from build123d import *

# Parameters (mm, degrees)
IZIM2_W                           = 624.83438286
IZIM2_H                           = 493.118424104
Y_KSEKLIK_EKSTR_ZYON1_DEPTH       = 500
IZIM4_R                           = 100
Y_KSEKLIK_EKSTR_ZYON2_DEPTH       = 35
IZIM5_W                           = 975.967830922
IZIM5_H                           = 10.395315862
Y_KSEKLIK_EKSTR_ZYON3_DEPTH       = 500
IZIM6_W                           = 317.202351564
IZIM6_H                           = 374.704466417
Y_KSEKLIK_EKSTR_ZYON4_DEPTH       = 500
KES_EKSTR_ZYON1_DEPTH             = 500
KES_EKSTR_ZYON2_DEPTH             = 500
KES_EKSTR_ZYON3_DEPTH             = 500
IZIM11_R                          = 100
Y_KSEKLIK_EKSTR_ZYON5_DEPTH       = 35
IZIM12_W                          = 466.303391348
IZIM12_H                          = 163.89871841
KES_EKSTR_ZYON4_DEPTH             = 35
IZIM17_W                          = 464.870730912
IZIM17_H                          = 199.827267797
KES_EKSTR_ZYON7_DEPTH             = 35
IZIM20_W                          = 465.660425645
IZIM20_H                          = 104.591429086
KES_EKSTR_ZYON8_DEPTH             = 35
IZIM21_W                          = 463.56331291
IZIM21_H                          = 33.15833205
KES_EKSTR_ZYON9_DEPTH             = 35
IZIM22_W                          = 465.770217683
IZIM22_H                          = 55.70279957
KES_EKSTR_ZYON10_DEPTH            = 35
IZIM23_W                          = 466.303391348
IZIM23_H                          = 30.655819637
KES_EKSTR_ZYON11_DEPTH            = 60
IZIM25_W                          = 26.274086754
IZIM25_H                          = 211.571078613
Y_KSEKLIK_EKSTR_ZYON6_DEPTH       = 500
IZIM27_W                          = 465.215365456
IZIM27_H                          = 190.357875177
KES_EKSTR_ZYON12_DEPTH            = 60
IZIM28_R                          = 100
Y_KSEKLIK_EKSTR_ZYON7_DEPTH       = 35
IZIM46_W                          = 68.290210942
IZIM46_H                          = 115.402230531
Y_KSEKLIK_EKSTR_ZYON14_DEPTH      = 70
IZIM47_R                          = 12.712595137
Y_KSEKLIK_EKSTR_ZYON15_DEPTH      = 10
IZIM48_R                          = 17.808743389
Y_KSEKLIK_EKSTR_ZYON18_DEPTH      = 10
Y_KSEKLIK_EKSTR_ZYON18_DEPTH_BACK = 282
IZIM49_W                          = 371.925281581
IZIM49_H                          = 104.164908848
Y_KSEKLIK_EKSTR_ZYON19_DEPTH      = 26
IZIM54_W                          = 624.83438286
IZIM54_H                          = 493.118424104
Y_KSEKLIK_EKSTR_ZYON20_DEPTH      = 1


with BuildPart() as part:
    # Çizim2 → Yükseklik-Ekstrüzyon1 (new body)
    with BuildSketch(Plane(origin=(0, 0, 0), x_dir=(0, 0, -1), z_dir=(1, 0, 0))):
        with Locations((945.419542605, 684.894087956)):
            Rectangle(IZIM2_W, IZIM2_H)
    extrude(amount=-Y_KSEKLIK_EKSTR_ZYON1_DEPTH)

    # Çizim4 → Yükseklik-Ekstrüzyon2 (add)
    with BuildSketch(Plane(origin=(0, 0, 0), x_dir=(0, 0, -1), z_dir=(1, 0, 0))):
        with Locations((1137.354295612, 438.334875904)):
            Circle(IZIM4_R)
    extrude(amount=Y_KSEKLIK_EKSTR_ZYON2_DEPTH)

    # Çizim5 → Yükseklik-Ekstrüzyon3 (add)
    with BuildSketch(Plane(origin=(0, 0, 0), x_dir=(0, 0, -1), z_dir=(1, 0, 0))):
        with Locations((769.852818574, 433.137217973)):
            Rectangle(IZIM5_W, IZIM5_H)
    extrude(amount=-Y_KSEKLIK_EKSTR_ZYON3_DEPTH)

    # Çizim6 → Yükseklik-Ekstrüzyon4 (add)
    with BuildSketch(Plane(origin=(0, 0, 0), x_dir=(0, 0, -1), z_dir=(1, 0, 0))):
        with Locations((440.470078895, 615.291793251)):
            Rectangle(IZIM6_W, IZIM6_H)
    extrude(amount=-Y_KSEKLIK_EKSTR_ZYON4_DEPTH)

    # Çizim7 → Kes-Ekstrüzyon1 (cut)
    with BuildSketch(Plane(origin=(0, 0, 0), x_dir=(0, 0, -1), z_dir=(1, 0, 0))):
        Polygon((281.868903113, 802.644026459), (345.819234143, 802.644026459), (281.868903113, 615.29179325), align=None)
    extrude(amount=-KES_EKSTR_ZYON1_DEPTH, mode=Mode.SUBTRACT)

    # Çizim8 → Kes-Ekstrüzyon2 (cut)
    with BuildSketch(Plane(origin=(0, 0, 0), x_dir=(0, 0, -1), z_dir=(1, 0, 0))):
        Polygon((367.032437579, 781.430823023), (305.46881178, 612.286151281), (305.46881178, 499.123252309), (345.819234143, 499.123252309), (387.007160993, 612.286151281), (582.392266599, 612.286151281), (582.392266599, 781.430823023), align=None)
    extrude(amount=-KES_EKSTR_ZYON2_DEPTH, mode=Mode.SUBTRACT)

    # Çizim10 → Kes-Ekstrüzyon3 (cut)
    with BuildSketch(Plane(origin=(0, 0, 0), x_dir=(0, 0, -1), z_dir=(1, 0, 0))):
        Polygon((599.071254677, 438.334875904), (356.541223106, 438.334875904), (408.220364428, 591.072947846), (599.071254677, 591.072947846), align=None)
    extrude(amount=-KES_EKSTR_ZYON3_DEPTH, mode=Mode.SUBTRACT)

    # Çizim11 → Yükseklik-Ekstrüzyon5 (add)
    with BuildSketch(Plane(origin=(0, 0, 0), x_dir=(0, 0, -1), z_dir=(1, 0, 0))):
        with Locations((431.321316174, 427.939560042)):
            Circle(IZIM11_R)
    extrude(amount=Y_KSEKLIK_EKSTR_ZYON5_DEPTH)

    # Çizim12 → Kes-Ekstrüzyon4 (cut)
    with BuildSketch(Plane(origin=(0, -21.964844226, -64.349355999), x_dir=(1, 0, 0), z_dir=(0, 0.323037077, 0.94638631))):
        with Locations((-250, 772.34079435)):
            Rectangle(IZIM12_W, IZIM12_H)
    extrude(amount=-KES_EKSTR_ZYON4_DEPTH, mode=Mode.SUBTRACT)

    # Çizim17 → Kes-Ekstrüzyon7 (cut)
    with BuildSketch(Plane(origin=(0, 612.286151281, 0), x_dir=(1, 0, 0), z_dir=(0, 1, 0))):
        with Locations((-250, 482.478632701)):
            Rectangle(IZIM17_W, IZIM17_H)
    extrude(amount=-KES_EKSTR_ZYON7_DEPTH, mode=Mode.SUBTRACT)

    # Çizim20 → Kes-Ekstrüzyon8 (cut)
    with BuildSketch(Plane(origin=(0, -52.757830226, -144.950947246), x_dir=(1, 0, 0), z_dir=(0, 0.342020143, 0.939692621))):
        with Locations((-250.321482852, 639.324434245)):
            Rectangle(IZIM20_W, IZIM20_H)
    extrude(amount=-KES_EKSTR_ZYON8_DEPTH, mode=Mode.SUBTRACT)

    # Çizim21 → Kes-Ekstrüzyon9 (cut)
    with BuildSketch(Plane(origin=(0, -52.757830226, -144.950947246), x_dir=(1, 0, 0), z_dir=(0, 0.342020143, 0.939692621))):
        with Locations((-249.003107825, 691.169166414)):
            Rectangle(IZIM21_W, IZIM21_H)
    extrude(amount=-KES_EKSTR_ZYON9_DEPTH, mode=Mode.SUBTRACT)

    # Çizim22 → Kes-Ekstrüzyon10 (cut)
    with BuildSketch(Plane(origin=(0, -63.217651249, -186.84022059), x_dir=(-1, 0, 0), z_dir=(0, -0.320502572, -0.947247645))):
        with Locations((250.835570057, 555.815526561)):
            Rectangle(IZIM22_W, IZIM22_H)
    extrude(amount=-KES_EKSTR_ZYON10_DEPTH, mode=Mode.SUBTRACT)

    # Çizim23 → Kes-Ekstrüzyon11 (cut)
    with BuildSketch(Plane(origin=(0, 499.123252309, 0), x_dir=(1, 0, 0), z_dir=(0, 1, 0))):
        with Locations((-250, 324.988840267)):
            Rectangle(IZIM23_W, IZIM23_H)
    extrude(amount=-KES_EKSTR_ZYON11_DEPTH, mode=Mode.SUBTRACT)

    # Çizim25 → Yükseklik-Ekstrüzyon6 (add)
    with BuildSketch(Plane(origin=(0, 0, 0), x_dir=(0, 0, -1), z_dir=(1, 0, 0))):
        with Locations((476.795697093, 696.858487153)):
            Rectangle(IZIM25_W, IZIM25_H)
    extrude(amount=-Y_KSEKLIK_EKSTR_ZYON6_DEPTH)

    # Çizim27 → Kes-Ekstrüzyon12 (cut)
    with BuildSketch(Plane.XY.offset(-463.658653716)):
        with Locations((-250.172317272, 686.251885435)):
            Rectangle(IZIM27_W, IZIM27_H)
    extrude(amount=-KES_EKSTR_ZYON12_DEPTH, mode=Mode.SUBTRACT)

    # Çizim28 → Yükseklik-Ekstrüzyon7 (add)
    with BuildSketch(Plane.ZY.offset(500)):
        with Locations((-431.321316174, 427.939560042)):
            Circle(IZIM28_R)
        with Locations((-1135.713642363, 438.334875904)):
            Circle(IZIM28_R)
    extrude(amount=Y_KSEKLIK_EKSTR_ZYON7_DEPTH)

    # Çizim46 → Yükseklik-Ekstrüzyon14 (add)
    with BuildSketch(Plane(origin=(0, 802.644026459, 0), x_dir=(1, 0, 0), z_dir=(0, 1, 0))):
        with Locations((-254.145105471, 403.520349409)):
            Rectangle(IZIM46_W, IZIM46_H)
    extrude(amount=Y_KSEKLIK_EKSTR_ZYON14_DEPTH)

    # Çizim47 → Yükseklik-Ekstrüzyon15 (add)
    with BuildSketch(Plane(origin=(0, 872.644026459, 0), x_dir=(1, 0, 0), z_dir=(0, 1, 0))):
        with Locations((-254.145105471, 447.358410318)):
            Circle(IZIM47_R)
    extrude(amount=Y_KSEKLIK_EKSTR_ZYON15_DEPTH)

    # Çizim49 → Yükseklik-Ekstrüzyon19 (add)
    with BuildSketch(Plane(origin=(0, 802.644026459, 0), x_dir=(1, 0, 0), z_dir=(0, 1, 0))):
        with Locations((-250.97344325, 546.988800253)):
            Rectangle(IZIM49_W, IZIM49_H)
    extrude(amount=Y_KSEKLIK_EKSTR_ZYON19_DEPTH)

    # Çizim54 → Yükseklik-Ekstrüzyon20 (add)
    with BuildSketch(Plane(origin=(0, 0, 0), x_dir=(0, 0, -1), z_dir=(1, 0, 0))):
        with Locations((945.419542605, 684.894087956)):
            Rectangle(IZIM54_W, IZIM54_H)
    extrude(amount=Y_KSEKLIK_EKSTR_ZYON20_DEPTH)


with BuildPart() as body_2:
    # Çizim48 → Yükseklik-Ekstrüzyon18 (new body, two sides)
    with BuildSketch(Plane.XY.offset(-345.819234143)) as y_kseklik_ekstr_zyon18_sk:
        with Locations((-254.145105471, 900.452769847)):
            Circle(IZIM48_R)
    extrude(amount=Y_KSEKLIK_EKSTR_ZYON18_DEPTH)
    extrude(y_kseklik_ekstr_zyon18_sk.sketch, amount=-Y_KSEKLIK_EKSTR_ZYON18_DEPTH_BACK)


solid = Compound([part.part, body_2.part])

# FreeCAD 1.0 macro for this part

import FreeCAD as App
import Part
import Sketcher

V = App.Vector
Q = App.Units.Quantity

doc = App.newDocument("Part")
body = doc.addObject("PartDesign::Body", "Body")

sketch1 = body.newObject("Sketcher::SketchObject", "Sketch")
sketch1.AttachmentSupport = (doc.getObject("YZ_Plane"), [""])
sketch1.MapMode = "FlatFace"
sketch1.addGeometry(Part.LineSegment(V(931, -633, 0), V(438, -633, 0)), False)
sketch1.addGeometry(Part.LineSegment(V(438, -633, 0), V(438, -1258, 0)), False)
sketch1.addGeometry(Part.LineSegment(V(438, -1258, 0), V(931, -1258, 0)), False)
sketch1.addGeometry(Part.LineSegment(V(931, -1258, 0), V(931, -633, 0)), False)
sketch1.addConstraint(Sketcher.Constraint("Coincident", 0, 2, 1, 1))
sketch1.addConstraint(Sketcher.Constraint("Coincident", 1, 2, 2, 1))
sketch1.addConstraint(Sketcher.Constraint("Coincident", 2, 2, 3, 1))
sketch1.addConstraint(Sketcher.Constraint("Coincident", 3, 2, 0, 1))
sketch1.addConstraint(Sketcher.Constraint("Horizontal", 0))
sketch1.addConstraint(Sketcher.Constraint("Vertical", 1))
sketch1.addConstraint(Sketcher.Constraint("Horizontal", 2))
sketch1.addConstraint(Sketcher.Constraint("Vertical", 3))
sketch1.addConstraint(Sketcher.Constraint("DistanceX", -1, 1, 2, 2, 931.4533))
sketch1.addConstraint(Sketcher.Constraint("DistanceX", 0, 2, 0, 1, 493.118424))
sketch1.addConstraint(Sketcher.Constraint("DistanceY", 1, 2, 1, 1, 624.834383))
sketch1.addConstraint(Sketcher.Constraint("DistanceY", 0, 2, -1, 1, 633.002351))
pad1 = body.newObject("PartDesign::Pad", "Pad")
pad1.Profile = sketch1
pad1.Length = 500
pad1.Reversed = True

sketch2 = body.newObject("Sketcher::SketchObject", "Sketch001")
sketch2.AttachmentSupport = (doc.getObject("YZ_Plane"), [""])
sketch2.MapMode = "FlatFace"
sketch2.addGeometry(Part.Circle(V(438, -1137, 0), V(0, 0, 1), 100), False)
sketch2.addConstraint(Sketcher.Constraint("Diameter", 0, 200.0))
sketch2.addConstraint(Sketcher.Constraint("DistanceX", -1, 1, 0, 3, 438.334876))
sketch2.addConstraint(Sketcher.Constraint("DistanceY", 0, 3, -1, 1, 1137.354296))
pad2 = body.newObject("PartDesign::Pad", "Pad001")
pad2.Profile = sketch2
pad2.Length = 35

sketch3 = body.newObject("Sketcher::SketchObject", "Sketch002")
sketch3.AttachmentSupport = (doc.getObject("YZ_Plane"), [""])
sketch3.MapMode = "FlatFace"
sketch3.addGeometry(Part.LineSegment(V(438, -282, 0), V(428, -282, 0)), False)
sketch3.addGeometry(Part.LineSegment(V(428, -282, 0), V(428, -1258, 0)), False)
sketch3.addGeometry(Part.LineSegment(V(428, -1258, 0), V(438, -1258, 0)), False)
sketch3.addGeometry(Part.LineSegment(V(438, -1258, 0), V(438, -282, 0)), False)
sketch3.addConstraint(Sketcher.Constraint("Coincident", 0, 2, 1, 1))
sketch3.addConstraint(Sketcher.Constraint("Coincident", 1, 2, 2, 1))
sketch3.addConstraint(Sketcher.Constraint("Coincident", 2, 2, 3, 1))
sketch3.addConstraint(Sketcher.Constraint("Coincident", 3, 2, 0, 1))
sketch3.addConstraint(Sketcher.Constraint("Horizontal", 0))
sketch3.addConstraint(Sketcher.Constraint("Vertical", 1))
sketch3.addConstraint(Sketcher.Constraint("Horizontal", 2))
sketch3.addConstraint(Sketcher.Constraint("Vertical", 3))
sketch3.addConstraint(Sketcher.Constraint("DistanceY", 1, 2, 1, 1, 975.967831))
sketch3.addConstraint(Sketcher.Constraint("DistanceX", 0, 2, 0, 1, 10.395316))
sketch3.addConstraint(Sketcher.Constraint("DistanceX", -1, 1, 0, 2, 427.93956))
sketch3.addConstraint(Sketcher.Constraint("DistanceY", 0, 2, -1, 1, 281.868903))
pad3 = body.newObject("PartDesign::Pad", "Pad002")
pad3.Profile = sketch3
pad3.Length = 500
pad3.Reversed = True

sketch4 = body.newObject("Sketcher::SketchObject", "Sketch003")
sketch4.AttachmentSupport = (doc.getObject("YZ_Plane"), [""])
sketch4.MapMode = "FlatFace"
sketch4.addGeometry(Part.LineSegment(V(803, -282, 0), V(428, -282, 0)), False)
sketch4.addGeometry(Part.LineSegment(V(428, -282, 0), V(428, -599, 0)), False)
sketch4.addGeometry(Part.LineSegment(V(428, -599, 0), V(803, -599, 0)), False)
sketch4.addGeometry(Part.LineSegment(V(803, -599, 0), V(803, -282, 0)), False)
sketch4.addConstraint(Sketcher.Constraint("Coincident", 0, 2, 1, 1))
sketch4.addConstraint(Sketcher.Constraint("Coincident", 1, 2, 2, 1))
sketch4.addConstraint(Sketcher.Constraint("Coincident", 2, 2, 3, 1))
sketch4.addConstraint(Sketcher.Constraint("Coincident", 3, 2, 0, 1))
sketch4.addConstraint(Sketcher.Constraint("Horizontal", 0))
sketch4.addConstraint(Sketcher.Constraint("Vertical", 1))
sketch4.addConstraint(Sketcher.Constraint("Horizontal", 2))
sketch4.addConstraint(Sketcher.Constraint("Vertical", 3))
sketch4.addConstraint(Sketcher.Constraint("DistanceY", 1, 2, 1, 1, 317.202352))
sketch4.addConstraint(Sketcher.Constraint("DistanceX", 0, 2, 0, 1, 374.704466))
sketch4.addConstraint(Sketcher.Constraint("DistanceX", -1, 1, 0, 2, 427.93956))
sketch4.addConstraint(Sketcher.Constraint("DistanceY", 0, 2, -1, 1, 281.868903))
pad4 = body.newObject("PartDesign::Pad", "Pad003")
pad4.Profile = sketch4
pad4.Length = 500
pad4.Reversed = True

sketch5 = body.newObject("Sketcher::SketchObject", "Sketch004")
sketch5.AttachmentSupport = (doc.getObject("YZ_Plane"), [""])
sketch5.MapMode = "FlatFace"
sketch5.addGeometry(Part.LineSegment(V(803, -346, 0), V(803, -282, 0)), False)
sketch5.addGeometry(Part.LineSegment(V(803, -282, 0), V(615, -282, 0)), False)
sketch5.addGeometry(Part.LineSegment(V(615, -282, 0), V(803, -346, 0)), False)
sketch5.addConstraint(Sketcher.Constraint("Coincident", 0, 2, 1, 1))
sketch5.addConstraint(Sketcher.Constraint("Coincident", 1, 2, 2, 1))
sketch5.addConstraint(Sketcher.Constraint("Coincident", 2, 2, 0, 1))
sketch5.addConstraint(Sketcher.Constraint("Vertical", 0))
sketch5.addConstraint(Sketcher.Constraint("Horizontal", 1))
sketch5.addConstraint(Sketcher.Constraint("DistanceY", 0, 1, 0, 2, 63.950331))
sketch5.addConstraint(Sketcher.Constraint("DistanceX", 1, 2, 1, 1, 187.352233))
sketch5.addConstraint(Sketcher.Constraint("DistanceX", -1, 1, 0, 2, 802.644026))
sketch5.addConstraint(Sketcher.Constraint("DistanceY", 0, 2, -1, 1, 281.868903))
pocket1 = body.newObject("PartDesign::Pocket", "Pocket")
pocket1.Profile = sketch5
pocket1.Length = 500

sketch6 = body.newObject("Sketcher::SketchObject", "Sketch005")
sketch6.AttachmentSupport = (doc.getObject("YZ_Plane"), [""])
sketch6.MapMode = "FlatFace"
sketch6.addGeometry(Part.LineSegment(V(781, -367, 0), V(612, -305, 0)), False)
sketch6.addGeometry(Part.LineSegment(V(612, -305, 0), V(499, -305, 0)), False)
sketch6.addGeometry(Part.LineSegment(V(499, -305, 0), V(499, -346, 0)), False)
sketch6.addGeometry(Part.LineSegment(V(499, -346, 0), V(612, -387, 0)), False)
sketch6.addGeometry(Part.LineSegment(V(612, -387, 0), V(612, -582, 0)), False)
sketch6.addGeometry(Part.LineSegment(V(612, -582, 0), V(781, -582, 0)), False)
sketch6.addGeometry(Part.LineSegment(V(781, -582, 0), V(781, -367, 0)), False)
sketch6.addConstraint(Sketcher.Constraint("Coincident", 0, 2, 1, 1))
sketch6.addConstraint(Sketcher.Constraint("Coincident", 1, 2, 2, 1))
sketch6.addConstraint(Sketcher.Constraint("Coincident", 2, 2, 3, 1))
sketch6.addConstraint(Sketcher.Constraint("Coincident", 3, 2, 4, 1))
sketch6.addConstraint(Sketcher.Constraint("Coincident", 4, 2, 5, 1))
sketch6.addConstraint(Sketcher.Constraint("Coincident", 5, 2, 6, 1))
sketch6.addConstraint(Sketcher.Constraint("Coincident", 6, 2, 0, 1))
sketch6.addConstraint(Sketcher.Constraint("Horizontal", 1))
sketch6.addConstraint(Sketcher.Constraint("Vertical", 2))
sketch6.addConstraint(Sketcher.Constraint("Vertical", 4))
sketch6.addConstraint(Sketcher.Constraint("Horizontal", 5))
sketch6.addConstraint(Sketcher.Constraint("Vertical", 6))
sketch6.addConstraint(Sketcher.Constraint("Parallel", 0, 3))
sketch6.addConstraint(Sketcher.Constraint("Vertical", 0, 2, 3, 2))
sketch6.addConstraint(Sketcher.Constraint("Angle", 0, Q("160 deg")))
sketch6.addConstraint(Sketcher.Constraint("Distance", 0, 180.0))
sketch6.addConstraint(Sketcher.Constraint("DistanceX", 1, 2, 1, 1, 113.162899))
sketch6.addConstraint(Sketcher.Constraint("DistanceY", 6, 1, 6, 2, 215.359829))
sketch6.addConstraint(Sketcher.Constraint("DistanceY", 2, 2, 2, 1, 40.350422))
sketch6.addConstraint(Sketcher.Constraint("DistanceX", -1, 1, 0, 2, 612.286151))
sketch6.addConstraint(Sketcher.Constraint("DistanceY", 0, 2, -1, 1, 305.468812))
pocket2 = body.newObject("PartDesign::Pocket", "Pocket001")
pocket2.Profile = sketch6
pocket2.Length = 500

sketch7 = body.newObject("Sketcher::SketchObject", "Sketch006")
sketch7.AttachmentSupport = (doc.getObject("YZ_Plane"), [""])
sketch7.MapMode = "FlatFace"
sketch7.addGeometry(Part.LineSegment(V(438, -357, 0), V(438, -599, 0)), False)
sketch7.addGeometry(Part.LineSegment(V(438, -599, 0), V(591, -599, 0)), False)
sketch7.addGeometry(Part.LineSegment(V(591, -599, 0), V(591, -408, 0)), False)
sketch7.addGeometry(Part.LineSegment(V(591, -408, 0), V(438, -357, 0)), False)
sketch7.addConstraint(Sketcher.Constraint("Coincident", 0, 2, 1, 1))
sketch7.addConstraint(Sketcher.Constraint("Coincident", 1, 2, 2, 1))
sketch7.addConstraint(Sketcher.Constraint("Coincident", 2, 2, 3, 1))
sketch7.addConstraint(Sketcher.Constraint("Coincident", 3, 2, 0, 1))
sketch7.addConstraint(Sketcher.Constraint("Vertical", 0))
sketch7.addConstraint(Sketcher.Constraint("Horizontal", 1))
sketch7.addConstraint(Sketcher.Constraint("Vertical", 2))
sketch7.addConstraint(Sketcher.Constraint("DistanceX", 1, 1, 1, 2, 152.738072))
sketch7.addConstraint(Sketcher.Constraint("DistanceY", 0, 2, 0, 1, 242.530032))
sketch7.addConstraint(Sketcher.Constraint("DistanceY", 2, 1, 2, 2, 190.85089))
sketch7.addConstraint(Sketcher.Constraint("DistanceX", -1, 1, 0, 2, 438.334876))
sketch7.addConstraint(Sketcher.Constraint("DistanceY", 0, 2, -1, 1, 599.071255))
pocket3 = body.newObject("PartDesign::Pocket", "Pocket002")
pocket3.Profile = sketch7
pocket3.Length = 500

sketch8 = body.newObject("Sketcher::SketchObject", "Sketch007")
sketch8.AttachmentSupport = (doc.getObject("YZ_Plane"), [""])
sketch8.MapMode = "FlatFace"
sketch8.addGeometry(Part.Circle(V(428, -431, 0), V(0, 0, 1), 100), False)
sketch8.addConstraint(Sketcher.Constraint("Diameter", 0, 200.0))
sketch8.addConstraint(Sketcher.Constraint("DistanceX", -1, 1, 0, 3, 427.93956))
sketch8.addConstraint(Sketcher.Constraint("DistanceY", 0, 3, -1, 1, 431.321316))
pad5 = body.newObject("PartDesign::Pad", "Pad004")
pad5.Profile = sketch8
pad5.Length = 35

sketch9 = body.newObject("Sketcher::SketchObject", "Sketch008")
sketch9.Placement = App.Placement(V(0, -21.964844, -64.349356), App.Rotation(V(1, 0, 0), V(0, 0.94638631, -0.323037077), V(0, 0.323037077, 0.94638631), "ZXY"))
sketch9.addGeometry(Part.LineSegment(V(-483, 854, 0), V(-483, 690, 0)), False)
sketch9.addGeometry(Part.LineSegment(V(-483, 690, 0), V(-17, 690, 0)), False)
sketch9.addGeometry(Part.LineSegment(V(-17, 690, 0), V(-17, 854, 0)), False)
sketch9.addGeometry(Part.LineSegment(V(-17, 854, 0), V(-483, 854, 0)), False)
sketch9.addConstraint(Sketcher.Constraint("Coincident", 0, 2, 1, 1))
sketch9.addConstraint(Sketcher.Constraint("Coincident", 1, 2, 2, 1))
sketch9.addConstraint(Sketcher.Constraint("Coincident", 2, 2, 3, 1))
sketch9.addConstraint(Sketcher.Constraint("Coincident", 3, 2, 0, 1))
sketch9.addConstraint(Sketcher.Constraint("Vertical", 0))
sketch9.addConstraint(Sketcher.Constraint("Horizontal", 1))
sketch9.addConstraint(Sketcher.Constraint("Vertical", 2))
sketch9.addConstraint(Sketcher.Constraint("Horizontal", 3))
sketch9.addConstraint(Sketcher.Constraint("DistanceX", 1, 1, 1, 2, 466.303391))
sketch9.addConstraint(Sketcher.Constraint("DistanceY", 0, 2, 0, 1, 163.898719))
sketch9.addConstraint(Sketcher.Constraint("DistanceX", 0, 2, -1, 1, 483.151696))
sketch9.addConstraint(Sketcher.Constraint("DistanceY", -1, 1, 0, 2, 690.391436))
pocket4 = body.newObject("PartDesign::Pocket", "Pocket003")
pocket4.Profile = sketch9
pocket4.Length = 35

sketch10 = body.newObject("Sketcher::SketchObject", "Sketch009")
sketch10.AttachmentSupport = (doc.getObject("XZ_Plane"), [""])
sketch10.MapMode = "FlatFace"
sketch10.AttachmentOffset = App.Placement(V(0, 0, -612.286151), App.Rotation())
sketch10.addGeometry(Part.LineSegment(V(-482, -582, 0), V(-482, -383, 0)), False)
sketch10.addGeometry(Part.LineSegment(V(-482, -383, 0), V(-18, -383, 0)), False)
sketch10.addGeometry(Part.LineSegment(V(-18, -383, 0), V(-18, -582, 0)), False)
sketch10.addGeometry(Part.LineSegment(V(-18, -582, 0), V(-482, -582, 0)), False)
sketch10.addConstraint(Sketcher.Constraint("Coincident", 0, 2, 1, 1))
sketch10.addConstraint(Sketcher.Constraint("Coincident", 1, 2, 2, 1))
sketch10.addConstraint(Sketcher.Constraint("Coincident", 2, 2, 3, 1))
sketch10.addConstraint(Sketcher.Constraint("Coincident", 3, 2, 0, 1))
sketch10.addConstraint(Sketcher.Constraint("Vertical", 0))
sketch10.addConstraint(Sketcher.Constraint("Horizontal", 1))
sketch10.addConstraint(Sketcher.Constraint("Vertical", 2))
sketch10.addConstraint(Sketcher.Constraint("Horizontal", 3))
sketch10.addConstraint(Sketcher.Constraint("DistanceY", 0, 2, -1, 1, 382.564999))
sketch10.addConstraint(Sketcher.Constraint("DistanceX", 1, 1, 1, 2, 464.870731))
sketch10.addConstraint(Sketcher.Constraint("DistanceY", 0, 1, 0, 2, 199.827268))
sketch10.addConstraint(Sketcher.Constraint("DistanceX", 0, 2, -1, 1, 482.435365))
pocket5 = body.newObject("PartDesign::Pocket", "Pocket004")
pocket5.Profile = sketch10
pocket5.Length = 35
pocket5.Reversed = True

sketch11 = body.newObject("Sketcher::SketchObject", "Sketch010")
sketch11.Placement = App.Placement(V(0, -52.75783, -144.950947), App.Rotation(V(1, 0, 0), V(0, 0.939692621, -0.342020143), V(0, 0.342020143, 0.939692621), "ZXY"))
sketch11.addGeometry(Part.LineSegment(V(-483, 692, 0), V(-483, 587, 0)), False)
sketch11.addGeometry(Part.LineSegment(V(-483, 587, 0), V(-17, 587, 0)), False)
sketch11.addGeometry(Part.LineSegment(V(-17, 587, 0), V(-17, 692, 0)), False)
sketch11.addGeometry(Part.LineSegment(V(-17, 692, 0), V(-483, 692, 0)), False)
sketch11.addConstraint(Sketcher.Constraint("Coincident", 0, 2, 1, 1))
sketch11.addConstraint(Sketcher.Constraint("Coincident", 1, 2, 2, 1))
sketch11.addConstraint(Sketcher.Constraint("Coincident", 2, 2, 3, 1))
sketch11.addConstraint(Sketcher.Constraint("Coincident", 3, 2, 0, 1))
sketch11.addConstraint(Sketcher.Constraint("Vertical", 0))
sketch11.addConstraint(Sketcher.Constraint("Horizontal", 1))
sketch11.addConstraint(Sketcher.Constraint("Vertical", 2))
sketch11.addConstraint(Sketcher.Constraint("Horizontal", 3))
sketch11.addConstraint(Sketcher.Constraint("DistanceY", 0, 2, 0, 1, 104.591429))
sketch11.addConstraint(Sketcher.Constraint("DistanceX", 1, 1, 1, 2, 465.660426))
sketch11.addConstraint(Sketcher.Constraint("DistanceY", -1, 1, 0, 2, 587.02872))
sketch11.addConstraint(Sketcher.Constraint("DistanceX", 1, 2, -1, 1, 17.49127))
pocket6 = body.newObject("PartDesign::Pocket", "Pocket005")
pocket6.Profile = sketch11
pocket6.Length = 35

sketch12 = body.newObject("Sketcher::SketchObject", "Sketch011")
sketch12.Placement = App.Placement(V(0, -52.75783, -144.950947), App.Rotation(V(1, 0, 0), V(0, 0.939692621, -0.342020143), V(0, 0.342020143, 0.939692621), "ZXY"))
sketch12.addGeometry(Part.LineSegment(V(-481, 708, 0), V(-481, 675, 0)), False)
sketch12.addGeometry(Part.LineSegment(V(-481, 675, 0), V(-17, 675, 0)), False)
sketch12.addGeometry(Part.LineSegment(V(-17, 675, 0), V(-17, 708, 0)), False)
sketch12.addGeometry(Part.LineSegment(V(-17, 708, 0), V(-481, 708, 0)), False)
sketch12.addConstraint(Sketcher.Constraint("Coincident", 0, 2, 1, 1))
sketch12.addConstraint(Sketcher.Constraint("Coincident", 1, 2, 2, 1))
sketch12.addConstraint(Sketcher.Constraint("Coincident", 2, 2, 3, 1))
sketch12.addConstraint(Sketcher.Constraint("Coincident", 3, 2, 0, 1))
sketch12.addConstraint(Sketcher.Constraint("Vertical", 0))
sketch12.addConstraint(Sketcher.Constraint("Horizontal", 1))
sketch12.addConstraint(Sketcher.Constraint("Vertical", 2))
sketch12.addConstraint(Sketcher.Constraint("Horizontal", 3))
sketch12.addConstraint(Sketcher.Constraint("DistanceY", -1, 1, 0, 2, 674.590001))
sketch12.addConstraint(Sketcher.Constraint("DistanceX", 1, 1, 1, 2, 463.563313))
sketch12.addConstraint(Sketcher.Constraint("DistanceY", 0, 2, 0, 1, 33.158332))
sketch12.addConstraint(Sketcher.Constraint("DistanceX", 1, 2, -1, 1, 17.221451))
pocket7 = body.newObject("PartDesign::Pocket", "Pocket006")
pocket7.Profile = sketch12
pocket7.Length = 35

sketch13 = body.newObject("Sketcher::SketchObject", "Sketch012")
sketch13.Placement = App.Placement(V(0, -63.217651, -186.840221), App.Rotation(V(-1, 0, 0), V(0, 0.947247645, -0.320502572), V(0, -0.320502572, -0.947247645), "ZXY"))
sketch13.addGeometry(Part.LineSegment(V(18, 584, 0), V(18, 528, 0)), False)
sketch13.addGeometry(Part.LineSegment(V(18, 528, 0), V(484, 528, 0)), False)
sketch13.addGeometry(Part.LineSegment(V(484, 528, 0), V(484, 584, 0)), False)
sketch13.addGeometry(Part.LineSegment(V(484, 584, 0), V(18, 584, 0)), False)
sketch13.addConstraint(Sketcher.Constraint("Coincident", 0, 2, 1, 1))
sketch13.addConstraint(Sketcher.Constraint("Coincident", 1, 2, 2, 1))
sketch13.addConstraint(Sketcher.Constraint("Coincident", 2, 2, 3, 1))
sketch13.addConstraint(Sketcher.Constraint("Coincident", 3, 2, 0, 1))
sketch13.addConstraint(Sketcher.Constraint("Vertical", 0))
sketch13.addConstraint(Sketcher.Constraint("Horizontal", 1))
sketch13.addConstraint(Sketcher.Constraint("Vertical", 2))
sketch13.addConstraint(Sketcher.Constraint("Horizontal", 3))
sketch13.addConstraint(Sketcher.Constraint("DistanceY", 0, 2, 0, 1, 55.7028))
sketch13.addConstraint(Sketcher.Constraint("DistanceX", 1, 1, 1, 2, 465.770218))
sketch13.addConstraint(Sketcher.Constraint("DistanceX", -1, 1, 0, 2, 17.950461))
sketch13.addConstraint(Sketcher.Constraint("DistanceY", -1, 1, 0, 2, 527.964127))
pocket8 = body.newObject("PartDesign::Pocket", "Pocket007")
pocket8.Profile = sketch13
pocket8.Length = 35

sketch14 = body.newObject("Sketcher::SketchObject", "Sketch013")
sketch14.AttachmentSupport = (doc.getObject("XZ_Plane"), [""])
sketch14.MapMode = "FlatFace"
sketch14.AttachmentOffset = App.Placement(V(0, 0, -499.123252), App.Rotation())
sketch14.addGeometry(Part.LineSegment(V(-483, -340, 0), V(-483, -310, 0)), False)
sketch14.addGeometry(Part.LineSegment(V(-483, -310, 0), V(-17, -310, 0)), False)
sketch14.addGeometry(Part.LineSegment(V(-17, -310, 0), V(-17, -340, 0)), False)
sketch14.addGeometry(Part.LineSegment(V(-17, -340, 0), V(-483, -340, 0)), False)
sketch14.addConstraint(Sketcher.Constraint("Coincident", 0, 2, 1, 1))
sketch14.addConstraint(Sketcher.Constraint("Coincident", 1, 2, 2, 1))
sketch14.addConstraint(Sketcher.Constraint("Coincident", 2, 2, 3, 1))
sketch14.addConstraint(Sketcher.Constraint("Coincident", 3, 2, 0, 1))
sketch14.addConstraint(Sketcher.Constraint("Vertical", 0))
sketch14.addConstraint(Sketcher.Constraint("Horizontal", 1))
sketch14.addConstraint(Sketcher.Constraint("Vertical", 2))
sketch14.addConstraint(Sketcher.Constraint("Horizontal", 3))
sketch14.addConstraint(Sketcher.Constraint("DistanceX", 1, 1, 1, 2, 466.303391))
sketch14.addConstraint(Sketcher.Constraint("DistanceY", 0, 1, 0, 2, 30.65582))
sketch14.addConstraint(Sketcher.Constraint("DistanceY", 0, 2, -1, 1, 309.66093))
sketch14.addConstraint(Sketcher.Constraint("DistanceX", 0, 2, -1, 1, 483.151696))
pocket9 = body.newObject("PartDesign::Pocket", "Pocket008")
pocket9.Profile = sketch14
pocket9.Length = 60
pocket9.Reversed = True

sketch15 = body.newObject("Sketcher::SketchObject", "Sketch014")
sketch15.AttachmentSupport = (doc.getObject("YZ_Plane"), [""])
sketch15.MapMode = "FlatFace"
sketch15.addGeometry(Part.LineSegment(V(803, -464, 0), V(591, -464, 0)), False)
sketch15.addGeometry(Part.LineSegment(V(591, -464, 0), V(591, -490, 0)), False)
sketch15.addGeometry(Part.LineSegment(V(591, -490, 0), V(803, -490, 0)), False)
sketch15.addGeometry(Part.LineSegment(V(803, -490, 0), V(803, -464, 0)), False)
sketch15.addConstraint(Sketcher.Constraint("Coincident", 0, 2, 1, 1))
sketch15.addConstraint(Sketcher.Constraint("Coincident", 1, 2, 2, 1))
sketch15.addConstraint(Sketcher.Constraint("Coincident", 2, 2, 3, 1))
sketch15.addConstraint(Sketcher.Constraint("Coincident", 3, 2, 0, 1))
sketch15.addConstraint(Sketcher.Constraint("Horizontal", 0))
sketch15.addConstraint(Sketcher.Constraint("Vertical", 1))
sketch15.addConstraint(Sketcher.Constraint("Horizontal", 2))
sketch15.addConstraint(Sketcher.Constraint("Vertical", 3))
sketch15.addConstraint(Sketcher.Constraint("DistanceX", 0, 2, 0, 1, 211.571079))
sketch15.addConstraint(Sketcher.Constraint("DistanceY", 1, 2, 1, 1, 26.274087))
sketch15.addConstraint(Sketcher.Constraint("DistanceY", 1, 2, -1, 1, 489.93274))
sketch15.addConstraint(Sketcher.Constraint("DistanceX", -1, 1, 0, 2, 591.072948))
pad6 = body.newObject("PartDesign::Pad", "Pad005")
pad6.Profile = sketch15
pad6.Length = 500
pad6.Reversed = True

sketch16 = body.newObject("Sketcher::SketchObject", "Sketch015")
sketch16.AttachmentSupport = (doc.getObject("XY_Plane"), [""])
sketch16.MapMode = "FlatFace"
sketch16.AttachmentOffset = App.Placement(V(0, 0, -463.658654), App.Rotation())
sketch16.addGeometry(Part.LineSegment(V(-483, 781, 0), V(-483, 591, 0)), False)
sketch16.addGeometry(Part.LineSegment(V(-483, 591, 0), V(-18, 591, 0)), False)
sketch16.addGeometry(Part.LineSegment(V(-18, 591, 0), V(-18, 781, 0)), False)
sketch16.addGeometry(Part.LineSegment(V(-18, 781, 0), V(-483, 781, 0)), False)
sketch16.addConstraint(Sketcher.Constraint("Coincident", 0, 2, 1, 1))
sketch16.addConstraint(Sketcher.Constraint("Coincident", 1, 2, 2, 1))
sketch16.addConstraint(Sketcher.Constraint("Coincident", 2, 2, 3, 1))
sketch16.addConstraint(Sketcher.Constraint("Coincident", 3, 2, 0, 1))
sketch16.addConstraint(Sketcher.Constraint("Vertical", 0))
sketch16.addConstraint(Sketcher.Constraint("Horizontal", 1))
sketch16.addConstraint(Sketcher.Constraint("Vertical", 2))
sketch16.addConstraint(Sketcher.Constraint("Horizontal", 3))
sketch16.addConstraint(Sketcher.Constraint("DistanceX", 0, 2, -1, 1, 482.78))
sketch16.addConstraint(Sketcher.Constraint("DistanceX", 1, 1, 1, 2, 465.215365))
sketch16.addConstraint(Sketcher.Constraint("DistanceY", 0, 2, 0, 1, 190.357875))
sketch16.addConstraint(Sketcher.Constraint("DistanceY", -1, 1, 0, 2, 591.072948))
pocket10 = body.newObject("PartDesign::Pocket", "Pocket009")
pocket10.Profile = sketch16
pocket10.Length = 60

sketch17 = body.newObject("Sketcher::SketchObject", "Sketch016")
sketch17.AttachmentSupport = (doc.getObject("YZ_Plane"), [""])
sketch17.MapMode = "FlatFace"
sketch17.AttachmentOffset = App.Placement(V(0, 0, -500), App.Rotation())
sketch17.addGeometry(Part.Circle(V(428, -431, 0), V(0, 0, 1), 100), False)
sketch17.addGeometry(Part.Circle(V(438, -1136, 0), V(0, 0, 1), 100), False)
sketch17.addConstraint(Sketcher.Constraint("Equal", 0, 1))
sketch17.addConstraint(Sketcher.Constraint("Diameter", 0, 200.0))
sketch17.addConstraint(Sketcher.Constraint("DistanceX", -1, 1, 0, 3, 427.93956))
sketch17.addConstraint(Sketcher.Constraint("DistanceY", 0, 3, -1, 1, 431.321316))
sketch17.addConstraint(Sketcher.Constraint("DistanceX", -1, 1, 1, 3, 438.334876))
sketch17.addConstraint(Sketcher.Constraint("DistanceY", 1, 3, -1, 1, 1135.713642))
pad7 = body.newObject("PartDesign::Pad", "Pad006")
pad7.Profile = sketch17
pad7.Length = 35
pad7.Reversed = True

sketch18 = body.newObject("Sketcher::SketchObject", "Sketch017")
sketch18.AttachmentSupport = (doc.getObject("XZ_Plane"), [""])
sketch18.MapMode = "FlatFace"
sketch18.AttachmentOffset = App.Placement(V(0, 0, -802.644026), App.Rotation())
sketch18.addGeometry(Part.LineSegment(V(-288, -461, 0), V(-288, -346, 0)), False)
sketch18.addGeometry(Part.LineSegment(V(-288, -346, 0), V(-220, -346, 0)), False)
sketch18.addGeometry(Part.LineSegment(V(-220, -346, 0), V(-220, -461, 0)), False)
sketch18.addGeometry(Part.LineSegment(V(-220, -461, 0), V(-288, -461, 0)), False)
sketch18.addConstraint(Sketcher.Constraint("Coincident", 0, 2, 1, 1))
sketch18.addConstraint(Sketcher.Constraint("Coincident", 1, 2, 2, 1))
sketch18.addConstraint(Sketcher.Constraint("Coincident", 2, 2, 3, 1))
sketch18.addConstraint(Sketcher.Constraint("Coincident", 3, 2, 0, 1))
sketch18.addConstraint(Sketcher.Constraint("Vertical", 0))
sketch18.addConstraint(Sketcher.Constraint("Horizontal", 1))
sketch18.addConstraint(Sketcher.Constraint("Vertical", 2))
sketch18.addConstraint(Sketcher.Constraint("Horizontal", 3))
sketch18.addConstraint(Sketcher.Constraint("DistanceX", 1, 2, -1, 1, 220.0))
sketch18.addConstraint(Sketcher.Constraint("DistanceX", 1, 1, 1, 2, 68.290211))
sketch18.addConstraint(Sketcher.Constraint("DistanceY", 0, 1, 0, 2, 115.402231))
sketch18.addConstraint(Sketcher.Constraint("DistanceY", 0, 2, -1, 1, 345.819234))
pad8 = body.newObject("PartDesign::Pad", "Pad007")
pad8.Profile = sketch18
pad8.Length = 70
pad8.Reversed = True

sketch19 = body.newObject("Sketcher::SketchObject", "Sketch018")
sketch19.AttachmentSupport = (doc.getObject("XZ_Plane"), [""])
sketch19.MapMode = "FlatFace"
sketch19.AttachmentOffset = App.Placement(V(0, 0, -872.644026), App.Rotation())
sketch19.addGeometry(Part.Circle(V(-254, -447, 0), V(0, 0, 1), 13), False)
sketch19.addConstraint(Sketcher.Constraint("Diameter", 0, 25.42519))
sketch19.addConstraint(Sketcher.Constraint("DistanceY", 0, 3, -1, 1, 447.35841))
sketch19.addConstraint(Sketcher.Constraint("DistanceX", 0, 3, -1, 1, 254.145105))
pad9 = body.newObject("PartDesign::Pad", "Pad008")
pad9.Profile = sketch19
pad9.Length = 10
pad9.Reversed = True

sketch20 = body.newObject("Sketcher::SketchObject", "Sketch019")
sketch20.AttachmentSupport = (doc.getObject("XZ_Plane"), [""])
sketch20.MapMode = "FlatFace"
sketch20.AttachmentOffset = App.Placement(V(0, 0, -802.644026), App.Rotation())
sketch20.addGeometry(Part.LineSegment(V(-437, -599, 0), V(-437, -495, 0)), False)
sketch20.addGeometry(Part.LineSegment(V(-437, -495, 0), V(-65, -495, 0)), False)
sketch20.addGeometry(Part.LineSegment(V(-65, -495, 0), V(-65, -599, 0)), False)
sketch20.addGeometry(Part.LineSegment(V(-65, -599, 0), V(-437, -599, 0)), False)
sketch20.addConstraint(Sketcher.Constraint("Coincident", 0, 2, 1, 1))
sketch20.addConstraint(Sketcher.Constraint("Coincident", 1, 2, 2, 1))
sketch20.addConstraint(Sketcher.Constraint("Coincident", 2, 2, 3, 1))
sketch20.addConstraint(Sketcher.Constraint("Coincident", 3, 2, 0, 1))
sketch20.addConstraint(Sketcher.Constraint("Vertical", 0))
sketch20.addConstraint(Sketcher.Constraint("Horizontal", 1))
sketch20.addConstraint(Sketcher.Constraint("Vertical", 2))
sketch20.addConstraint(Sketcher.Constraint("Horizontal", 3))
sketch20.addConstraint(Sketcher.Constraint("DistanceX", 1, 1, 1, 2, 371.925282))
sketch20.addConstraint(Sketcher.Constraint("DistanceY", 0, 1, 0, 2, 104.164909))
sketch20.addConstraint(Sketcher.Constraint("DistanceX", 0, 2, -1, 1, 436.936084))
sketch20.addConstraint(Sketcher.Constraint("DistanceY", 0, 2, -1, 1, 494.906346))
pad10 = body.newObject("PartDesign::Pad", "Pad009")
pad10.Profile = sketch20
pad10.Length = 26
pad10.Reversed = True

sketch21 = body.newObject("Sketcher::SketchObject", "Sketch020")
sketch21.AttachmentSupport = (doc.getObject("YZ_Plane"), [""])
sketch21.MapMode = "FlatFace"
sketch21.addGeometry(Part.LineSegment(V(931, -633, 0), V(438, -633, 0)), False)
sketch21.addGeometry(Part.LineSegment(V(438, -633, 0), V(438, -1258, 0)), False)
sketch21.addGeometry(Part.LineSegment(V(438, -1258, 0), V(931, -1258, 0)), False)
sketch21.addGeometry(Part.LineSegment(V(931, -1258, 0), V(931, -633, 0)), False)
sketch21.addConstraint(Sketcher.Constraint("Coincident", 0, 2, 1, 1))
sketch21.addConstraint(Sketcher.Constraint("Coincident", 1, 2, 2, 1))
sketch21.addConstraint(Sketcher.Constraint("Coincident", 2, 2, 3, 1))
sketch21.addConstraint(Sketcher.Constraint("Coincident", 3, 2, 0, 1))
sketch21.addConstraint(Sketcher.Constraint("Horizontal", 0))
sketch21.addConstraint(Sketcher.Constraint("Vertical", 1))
sketch21.addConstraint(Sketcher.Constraint("Horizontal", 2))
sketch21.addConstraint(Sketcher.Constraint("Vertical", 3))
sketch21.addConstraint(Sketcher.Constraint("DistanceX", -1, 1, 2, 2, 931.4533))
sketch21.addConstraint(Sketcher.Constraint("DistanceX", 0, 2, 0, 1, 493.118424))
sketch21.addConstraint(Sketcher.Constraint("DistanceY", 1, 2, 1, 1, 624.834383))
sketch21.addConstraint(Sketcher.Constraint("DistanceY", 0, 2, -1, 1, 633.002351))
pad11 = body.newObject("PartDesign::Pad", "Pad010")
pad11.Profile = sketch21
pad11.Length = 1
body2 = doc.addObject("PartDesign::Body", "Body001")

sketch22 = body2.newObject("Sketcher::SketchObject", "Sketch021")
sketch22.AttachmentSupport = (doc.getObject("XY_Plane001"), [""])
sketch22.MapMode = "FlatFace"
sketch22.AttachmentOffset = App.Placement(V(0, 0, -345.819234), App.Rotation())
sketch22.addGeometry(Part.Circle(V(-254, 900, 0), V(0, 0, 1), 18), False)
sketch22.addConstraint(Sketcher.Constraint("Diameter", 0, 35.617487))
sketch22.addConstraint(Sketcher.Constraint("DistanceY", -1, 1, 0, 3, 900.45277))
sketch22.addConstraint(Sketcher.Constraint("DistanceX", 0, 3, -1, 1, 254.145105))
pad12 = body2.newObject("PartDesign::Pad", "Pad011")
pad12.Profile = sketch22
pad12.Type = "TwoLengths"
pad12.Length = 10
pad12.Length2 = 282

doc.recompute()
